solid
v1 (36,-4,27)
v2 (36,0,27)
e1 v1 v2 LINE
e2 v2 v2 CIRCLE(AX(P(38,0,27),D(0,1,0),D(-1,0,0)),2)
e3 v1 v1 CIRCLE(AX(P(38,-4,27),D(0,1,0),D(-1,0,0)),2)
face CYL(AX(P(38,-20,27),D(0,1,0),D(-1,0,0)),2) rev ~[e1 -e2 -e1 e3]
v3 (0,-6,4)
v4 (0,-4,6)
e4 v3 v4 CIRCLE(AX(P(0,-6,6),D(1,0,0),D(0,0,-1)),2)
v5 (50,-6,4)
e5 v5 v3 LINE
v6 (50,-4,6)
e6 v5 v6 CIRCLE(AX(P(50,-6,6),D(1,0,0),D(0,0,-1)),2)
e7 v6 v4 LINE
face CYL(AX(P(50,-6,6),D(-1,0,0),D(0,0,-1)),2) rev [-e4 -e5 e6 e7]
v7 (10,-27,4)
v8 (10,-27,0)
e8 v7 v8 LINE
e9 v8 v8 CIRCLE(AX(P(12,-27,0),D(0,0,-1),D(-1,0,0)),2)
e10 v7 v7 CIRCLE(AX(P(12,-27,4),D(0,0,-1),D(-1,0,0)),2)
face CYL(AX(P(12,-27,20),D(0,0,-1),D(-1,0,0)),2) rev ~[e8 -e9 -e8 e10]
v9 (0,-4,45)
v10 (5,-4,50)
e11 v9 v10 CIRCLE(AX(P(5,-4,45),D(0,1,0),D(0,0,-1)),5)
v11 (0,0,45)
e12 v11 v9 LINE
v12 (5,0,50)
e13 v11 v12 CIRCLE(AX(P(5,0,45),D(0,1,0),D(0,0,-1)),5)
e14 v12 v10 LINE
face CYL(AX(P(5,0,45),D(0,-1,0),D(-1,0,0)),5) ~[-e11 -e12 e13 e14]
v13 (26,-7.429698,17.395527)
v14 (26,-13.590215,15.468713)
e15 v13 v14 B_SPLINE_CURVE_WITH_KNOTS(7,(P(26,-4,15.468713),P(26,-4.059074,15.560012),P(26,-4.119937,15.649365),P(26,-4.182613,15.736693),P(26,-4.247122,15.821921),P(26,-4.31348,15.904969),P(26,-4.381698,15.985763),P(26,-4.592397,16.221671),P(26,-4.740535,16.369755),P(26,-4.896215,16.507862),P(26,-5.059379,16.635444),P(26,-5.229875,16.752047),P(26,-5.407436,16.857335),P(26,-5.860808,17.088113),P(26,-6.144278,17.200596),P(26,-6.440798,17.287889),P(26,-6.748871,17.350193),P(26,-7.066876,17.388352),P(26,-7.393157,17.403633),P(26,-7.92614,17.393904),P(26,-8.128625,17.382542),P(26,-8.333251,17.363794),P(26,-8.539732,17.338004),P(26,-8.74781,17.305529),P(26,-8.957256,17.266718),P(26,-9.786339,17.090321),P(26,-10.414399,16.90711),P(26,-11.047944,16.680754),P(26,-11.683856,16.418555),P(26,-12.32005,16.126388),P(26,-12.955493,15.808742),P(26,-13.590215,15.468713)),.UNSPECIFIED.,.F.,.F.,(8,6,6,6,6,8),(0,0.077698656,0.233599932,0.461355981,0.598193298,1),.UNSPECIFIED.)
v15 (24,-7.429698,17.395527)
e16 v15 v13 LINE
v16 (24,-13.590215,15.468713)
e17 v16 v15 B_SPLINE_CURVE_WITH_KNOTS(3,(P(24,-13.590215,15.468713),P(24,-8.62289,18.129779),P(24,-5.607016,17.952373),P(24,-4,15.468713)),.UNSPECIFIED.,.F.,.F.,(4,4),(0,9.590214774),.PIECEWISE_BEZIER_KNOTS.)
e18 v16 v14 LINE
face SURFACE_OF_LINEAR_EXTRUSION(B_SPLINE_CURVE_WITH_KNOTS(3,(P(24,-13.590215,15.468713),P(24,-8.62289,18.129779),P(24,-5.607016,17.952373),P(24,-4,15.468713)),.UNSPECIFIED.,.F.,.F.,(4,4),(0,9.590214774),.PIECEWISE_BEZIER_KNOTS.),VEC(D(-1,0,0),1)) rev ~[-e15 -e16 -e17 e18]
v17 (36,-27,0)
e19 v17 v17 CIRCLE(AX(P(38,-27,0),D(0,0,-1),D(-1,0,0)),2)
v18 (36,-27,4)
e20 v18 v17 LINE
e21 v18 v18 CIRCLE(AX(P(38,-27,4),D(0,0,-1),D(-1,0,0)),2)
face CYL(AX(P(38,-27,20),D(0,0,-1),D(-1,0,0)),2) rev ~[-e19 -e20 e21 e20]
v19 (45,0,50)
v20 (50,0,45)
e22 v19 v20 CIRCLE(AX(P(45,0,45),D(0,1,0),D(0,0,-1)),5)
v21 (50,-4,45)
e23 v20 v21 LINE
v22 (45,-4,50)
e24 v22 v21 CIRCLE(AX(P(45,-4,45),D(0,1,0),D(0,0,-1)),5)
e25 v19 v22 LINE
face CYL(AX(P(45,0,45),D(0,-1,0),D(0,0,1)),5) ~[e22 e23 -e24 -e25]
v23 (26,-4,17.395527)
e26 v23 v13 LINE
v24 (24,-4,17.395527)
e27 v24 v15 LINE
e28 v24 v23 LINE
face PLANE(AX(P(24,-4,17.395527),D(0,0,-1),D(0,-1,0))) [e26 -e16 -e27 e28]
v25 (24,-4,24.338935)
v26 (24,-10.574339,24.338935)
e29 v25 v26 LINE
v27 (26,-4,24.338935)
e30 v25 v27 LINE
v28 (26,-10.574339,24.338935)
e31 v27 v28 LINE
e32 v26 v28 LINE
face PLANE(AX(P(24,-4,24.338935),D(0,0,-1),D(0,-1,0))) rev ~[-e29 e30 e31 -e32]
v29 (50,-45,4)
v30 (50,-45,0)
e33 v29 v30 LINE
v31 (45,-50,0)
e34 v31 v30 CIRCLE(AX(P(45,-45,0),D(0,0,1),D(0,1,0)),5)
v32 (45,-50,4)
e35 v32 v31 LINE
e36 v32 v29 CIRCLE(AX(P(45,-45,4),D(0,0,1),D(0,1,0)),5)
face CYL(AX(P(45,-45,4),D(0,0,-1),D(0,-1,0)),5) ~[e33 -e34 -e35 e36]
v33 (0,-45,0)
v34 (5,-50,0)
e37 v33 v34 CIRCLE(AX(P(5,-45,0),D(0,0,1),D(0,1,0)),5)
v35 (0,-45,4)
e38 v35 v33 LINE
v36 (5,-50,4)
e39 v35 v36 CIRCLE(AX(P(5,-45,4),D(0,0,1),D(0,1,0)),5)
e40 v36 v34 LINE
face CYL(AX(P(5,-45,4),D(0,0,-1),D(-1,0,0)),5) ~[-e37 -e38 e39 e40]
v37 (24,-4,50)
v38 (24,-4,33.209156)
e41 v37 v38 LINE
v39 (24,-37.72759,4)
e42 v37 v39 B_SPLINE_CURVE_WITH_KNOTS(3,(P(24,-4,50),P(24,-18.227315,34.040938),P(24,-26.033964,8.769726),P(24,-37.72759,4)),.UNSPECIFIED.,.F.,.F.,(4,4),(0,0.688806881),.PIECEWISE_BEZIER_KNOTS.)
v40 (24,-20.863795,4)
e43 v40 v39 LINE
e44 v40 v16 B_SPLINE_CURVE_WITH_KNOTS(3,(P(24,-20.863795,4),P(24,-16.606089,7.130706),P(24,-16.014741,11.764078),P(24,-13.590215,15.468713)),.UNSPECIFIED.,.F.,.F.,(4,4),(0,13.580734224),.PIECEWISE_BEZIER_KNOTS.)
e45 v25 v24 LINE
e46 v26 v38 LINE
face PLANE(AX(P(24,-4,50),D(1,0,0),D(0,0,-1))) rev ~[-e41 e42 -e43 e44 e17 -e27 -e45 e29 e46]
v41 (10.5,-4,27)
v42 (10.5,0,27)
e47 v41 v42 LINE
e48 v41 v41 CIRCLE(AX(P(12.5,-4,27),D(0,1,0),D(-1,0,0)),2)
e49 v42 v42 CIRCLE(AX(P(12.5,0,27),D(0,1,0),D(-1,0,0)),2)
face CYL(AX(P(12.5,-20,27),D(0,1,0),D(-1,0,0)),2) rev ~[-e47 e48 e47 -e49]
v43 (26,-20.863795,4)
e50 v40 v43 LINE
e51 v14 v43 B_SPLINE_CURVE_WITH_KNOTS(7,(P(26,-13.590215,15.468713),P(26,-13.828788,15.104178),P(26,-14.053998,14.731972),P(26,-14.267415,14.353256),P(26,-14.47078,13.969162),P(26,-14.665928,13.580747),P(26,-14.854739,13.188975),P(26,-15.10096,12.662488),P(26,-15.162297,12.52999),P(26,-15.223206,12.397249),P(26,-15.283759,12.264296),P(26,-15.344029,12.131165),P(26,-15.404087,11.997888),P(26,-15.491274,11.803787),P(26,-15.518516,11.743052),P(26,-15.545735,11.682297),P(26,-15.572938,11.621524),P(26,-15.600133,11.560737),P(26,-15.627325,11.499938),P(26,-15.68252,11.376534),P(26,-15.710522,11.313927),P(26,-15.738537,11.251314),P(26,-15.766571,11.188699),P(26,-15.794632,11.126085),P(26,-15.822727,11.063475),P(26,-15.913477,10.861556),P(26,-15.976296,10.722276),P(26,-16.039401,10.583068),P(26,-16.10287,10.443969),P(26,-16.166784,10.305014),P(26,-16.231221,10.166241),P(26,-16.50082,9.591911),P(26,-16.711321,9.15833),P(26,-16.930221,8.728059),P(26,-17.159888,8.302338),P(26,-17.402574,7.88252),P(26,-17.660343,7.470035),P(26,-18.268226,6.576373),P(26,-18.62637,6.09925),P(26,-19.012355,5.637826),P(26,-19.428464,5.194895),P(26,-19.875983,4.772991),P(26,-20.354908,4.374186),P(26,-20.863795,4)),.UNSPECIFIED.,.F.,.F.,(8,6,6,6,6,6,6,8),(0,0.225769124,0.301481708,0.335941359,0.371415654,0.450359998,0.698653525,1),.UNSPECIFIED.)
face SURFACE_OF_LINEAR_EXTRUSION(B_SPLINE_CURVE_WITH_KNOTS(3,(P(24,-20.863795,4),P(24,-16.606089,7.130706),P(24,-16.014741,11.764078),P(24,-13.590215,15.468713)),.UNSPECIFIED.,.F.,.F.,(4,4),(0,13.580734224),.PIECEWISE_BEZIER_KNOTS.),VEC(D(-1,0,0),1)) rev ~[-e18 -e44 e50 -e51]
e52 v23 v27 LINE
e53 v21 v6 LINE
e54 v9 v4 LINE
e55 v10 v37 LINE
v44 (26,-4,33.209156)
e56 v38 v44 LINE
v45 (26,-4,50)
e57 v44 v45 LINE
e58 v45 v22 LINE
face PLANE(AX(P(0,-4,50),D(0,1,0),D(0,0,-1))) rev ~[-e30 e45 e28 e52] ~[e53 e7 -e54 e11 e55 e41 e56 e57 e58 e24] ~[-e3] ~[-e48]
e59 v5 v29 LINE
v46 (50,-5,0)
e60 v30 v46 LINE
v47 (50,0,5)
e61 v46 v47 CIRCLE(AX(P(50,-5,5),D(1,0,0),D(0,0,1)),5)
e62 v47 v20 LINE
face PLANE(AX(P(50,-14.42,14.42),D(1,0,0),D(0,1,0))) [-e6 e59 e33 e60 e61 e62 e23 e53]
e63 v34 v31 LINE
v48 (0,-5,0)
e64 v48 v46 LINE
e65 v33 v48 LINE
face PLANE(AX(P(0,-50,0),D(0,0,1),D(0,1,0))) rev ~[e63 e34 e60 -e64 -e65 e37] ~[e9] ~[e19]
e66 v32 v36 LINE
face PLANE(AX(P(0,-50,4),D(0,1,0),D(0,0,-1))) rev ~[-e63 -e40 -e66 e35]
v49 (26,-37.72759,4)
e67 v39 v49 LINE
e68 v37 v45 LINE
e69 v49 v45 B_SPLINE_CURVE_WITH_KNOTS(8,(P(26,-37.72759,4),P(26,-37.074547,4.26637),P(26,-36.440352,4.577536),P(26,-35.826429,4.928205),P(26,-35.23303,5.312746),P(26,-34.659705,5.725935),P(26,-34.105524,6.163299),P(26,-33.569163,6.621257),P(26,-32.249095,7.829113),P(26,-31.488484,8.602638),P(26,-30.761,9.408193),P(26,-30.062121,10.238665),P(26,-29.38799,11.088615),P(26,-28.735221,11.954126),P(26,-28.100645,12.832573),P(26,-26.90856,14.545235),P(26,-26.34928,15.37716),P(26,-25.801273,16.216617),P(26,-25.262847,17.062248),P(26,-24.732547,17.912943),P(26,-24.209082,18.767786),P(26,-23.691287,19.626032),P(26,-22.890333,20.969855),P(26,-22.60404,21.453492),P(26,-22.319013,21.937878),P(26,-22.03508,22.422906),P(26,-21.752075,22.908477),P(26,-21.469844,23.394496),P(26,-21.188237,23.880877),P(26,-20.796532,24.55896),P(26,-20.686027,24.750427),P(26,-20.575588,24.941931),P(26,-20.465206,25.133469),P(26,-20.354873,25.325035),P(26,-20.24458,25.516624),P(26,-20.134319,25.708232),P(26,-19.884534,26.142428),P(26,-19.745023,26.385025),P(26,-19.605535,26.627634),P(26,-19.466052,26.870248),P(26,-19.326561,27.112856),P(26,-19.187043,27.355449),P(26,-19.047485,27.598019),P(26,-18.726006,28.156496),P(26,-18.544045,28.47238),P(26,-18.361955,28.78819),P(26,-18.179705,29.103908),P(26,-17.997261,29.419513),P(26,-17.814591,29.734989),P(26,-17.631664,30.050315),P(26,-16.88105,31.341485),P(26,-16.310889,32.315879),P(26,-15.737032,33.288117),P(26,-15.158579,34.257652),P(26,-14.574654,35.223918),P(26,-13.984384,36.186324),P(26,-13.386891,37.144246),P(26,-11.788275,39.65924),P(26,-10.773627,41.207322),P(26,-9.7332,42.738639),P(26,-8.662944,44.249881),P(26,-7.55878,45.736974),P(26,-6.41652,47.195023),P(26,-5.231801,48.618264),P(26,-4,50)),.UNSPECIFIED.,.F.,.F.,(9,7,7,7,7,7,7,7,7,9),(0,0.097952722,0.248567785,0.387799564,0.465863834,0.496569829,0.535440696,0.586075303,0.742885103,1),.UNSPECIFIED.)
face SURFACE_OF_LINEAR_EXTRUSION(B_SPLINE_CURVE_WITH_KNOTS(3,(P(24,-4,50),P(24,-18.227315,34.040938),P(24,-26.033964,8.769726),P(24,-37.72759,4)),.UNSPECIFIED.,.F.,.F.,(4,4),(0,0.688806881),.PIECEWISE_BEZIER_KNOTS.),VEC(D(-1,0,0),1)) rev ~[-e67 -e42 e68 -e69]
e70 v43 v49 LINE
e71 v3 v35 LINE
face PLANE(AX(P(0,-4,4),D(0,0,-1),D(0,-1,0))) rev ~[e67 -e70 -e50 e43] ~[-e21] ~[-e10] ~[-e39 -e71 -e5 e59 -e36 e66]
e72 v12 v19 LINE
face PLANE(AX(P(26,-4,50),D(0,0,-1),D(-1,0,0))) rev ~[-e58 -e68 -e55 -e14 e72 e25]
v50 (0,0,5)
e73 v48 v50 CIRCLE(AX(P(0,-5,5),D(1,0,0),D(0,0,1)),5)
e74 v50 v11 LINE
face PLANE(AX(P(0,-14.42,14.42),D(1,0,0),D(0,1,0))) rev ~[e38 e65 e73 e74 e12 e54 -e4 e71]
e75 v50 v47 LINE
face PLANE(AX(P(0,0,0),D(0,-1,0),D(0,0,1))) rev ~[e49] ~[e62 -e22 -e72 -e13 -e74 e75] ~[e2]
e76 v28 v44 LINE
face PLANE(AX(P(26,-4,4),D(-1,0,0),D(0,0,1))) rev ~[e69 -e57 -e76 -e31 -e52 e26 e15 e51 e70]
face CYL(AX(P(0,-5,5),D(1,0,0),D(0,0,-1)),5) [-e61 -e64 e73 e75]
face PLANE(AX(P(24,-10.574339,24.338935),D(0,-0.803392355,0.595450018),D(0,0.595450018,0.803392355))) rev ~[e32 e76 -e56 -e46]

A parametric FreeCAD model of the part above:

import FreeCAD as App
import Part
import Sketcher
from FreeCAD import Vector
Q = App.Units.Quantity


def edges_at(feature, points):
    """Names of the edges that pass closest to the given points."""
    edges = feature.Shape.Edges
    near = lambda p: min(range(len(edges)), key=lambda i: edges[i].distToShape(Part.Vertex(*p))[0])
    return sorted({f"Edge{near(p) + 1}" for p in points})

doc = App.newDocument("Part")
body = doc.addObject("PartDesign::Body", "Body")

sketch1 = body.newObject("Sketcher::SketchObject", "Sketch")
sketch1.AttachmentSupport = (doc.getObject("YZ_Plane"), [""])
sketch1.MapMode = "FlatFace"
sketch1.addGeometry(Part.LineSegment(Vector(-50, 4, 0), Vector(-50, 0, 0)), False)
sketch1.addGeometry(Part.LineSegment(Vector(-50, 0, 0), Vector(0, 0, 0)), False)
sketch1.addGeometry(Part.LineSegment(Vector(0, 0, 0), Vector(0, 50, 0)), False)
sketch1.addGeometry(Part.LineSegment(Vector(0, 50, 0), Vector(-4, 50, 0)), False)
sketch1.addGeometry(Part.LineSegment(Vector(-4, 50, 0), Vector(-4, 4, 0)), False)
sketch1.addGeometry(Part.LineSegment(Vector(-4, 4, 0), Vector(-50, 4, 0)), False)
sketch1.addConstraint(Sketcher.Constraint("Coincident", 0, 2, 1, 1))
sketch1.addConstraint(Sketcher.Constraint("Coincident", 1, 2, 2, 1))
sketch1.addConstraint(Sketcher.Constraint("Coincident", 2, 2, 3, 1))
sketch1.addConstraint(Sketcher.Constraint("Coincident", 3, 2, 4, 1))
sketch1.addConstraint(Sketcher.Constraint("Coincident", 4, 2, 5, 1))
sketch1.addConstraint(Sketcher.Constraint("Coincident", 5, 2, 0, 1))
sketch1.addConstraint(Sketcher.Constraint("Vertical", 0))
sketch1.addConstraint(Sketcher.Constraint("Horizontal", 1))
sketch1.addConstraint(Sketcher.Constraint("Vertical", 2))
sketch1.addConstraint(Sketcher.Constraint("Horizontal", 3))
sketch1.addConstraint(Sketcher.Constraint("Vertical", 4))
sketch1.addConstraint(Sketcher.Constraint("Horizontal", 5))
sketch1.addConstraint(Sketcher.Constraint("Coincident", 1, 2, -1, 1))
sketch1.addConstraint(Sketcher.Constraint("Equal", 3, 0))
sketch1.addConstraint(Sketcher.Constraint("Equal", 1, 2))
sketch1.addConstraint(Sketcher.Constraint("DistanceX", 1, 1, 1, 2, Q("50 mm")))
sketch1.addConstraint(Sketcher.Constraint("DistanceX", 3, 2, 3, 1, Q("4 mm")))
pad1 = body.newObject("PartDesign::Pad", "Pad")
pad1.Profile = sketch1
pad1.Length = 50

sketch2 = body.newObject("Sketcher::SketchObject", "Sketch001")
sketch2.AttachmentSupport = (doc.getObject("XZ_Plane"), [""])
sketch2.MapMode = "FlatFace"
sketch2.AttachmentOffset = App.Placement(Vector(0, 0, 4), App.Rotation())
sketch2.addGeometry(Part.LineSegment(Vector(24, 50, 0), Vector(24, 4, 0)), False)
sketch2.addGeometry(Part.LineSegment(Vector(24, 4, 0), Vector(26, 4, 0)), False)
sketch2.addGeometry(Part.LineSegment(Vector(26, 4, 0), Vector(26, 50, 0)), False)
sketch2.addGeometry(Part.LineSegment(Vector(26, 50, 0), Vector(24, 50, 0)), False)
sketch2.addConstraint(Sketcher.Constraint("Coincident", 0, 2, 1, 1))
sketch2.addConstraint(Sketcher.Constraint("Coincident", 1, 2, 2, 1))
sketch2.addConstraint(Sketcher.Constraint("Coincident", 2, 2, 3, 1))
sketch2.addConstraint(Sketcher.Constraint("Coincident", 3, 2, 0, 1))
sketch2.addConstraint(Sketcher.Constraint("Vertical", 0))
sketch2.addConstraint(Sketcher.Constraint("Horizontal", 1))
sketch2.addConstraint(Sketcher.Constraint("Vertical", 2))
sketch2.addConstraint(Sketcher.Constraint("Horizontal", 3))
sketch2.addConstraint(Sketcher.Constraint("DistanceX", 1, 1, 1, 2, Q("2 mm")))
sketch2.addConstraint(Sketcher.Constraint("DistanceY", 0, 2, 0, 1, Q("46 mm")))
sketch2.addConstraint(Sketcher.Constraint("DistanceX", -1, 1, 0, 2, Q("24 mm")))
sketch2.addConstraint(Sketcher.Constraint("DistanceY", -1, 1, 0, 2, Q("4 mm")))
pad2 = body.newObject("PartDesign::Pad", "Pad001")
pad2.Profile = sketch2
pad2.Length = 46

sketch3 = body.newObject("Sketcher::SketchObject", "Sketch002")
sketch3.AttachmentSupport = (doc.getObject("YZ_Plane"), [""])
sketch3.MapMode = "FlatFace"
sketch3.AttachmentOffset = App.Placement(Vector(0, 0, 24), App.Rotation())
sketch3.addGeometry(Part.LineSegment(Vector(-50, 50, 0), Vector(-4, 50, 0)), False)
sketch3.addGeometry(Part.BSplineCurve([Vector(-4, 50, 0), Vector(-18.227315, 34.040938, 0), Vector(-26.033964, 8.769726, 0), Vector(-37.72759, 4, 0)], [4, 4], [0, 0.688806881], False, 3, [1, 1, 1, 1], False), False)
sketch3.addGeometry(Part.LineSegment(Vector(-37.72759, 4, 0), Vector(-50, 4, 0)), False)
sketch3.addGeometry(Part.LineSegment(Vector(-50, 4, 0), Vector(-50, 50, 0)), False)
sketch3.addConstraint(Sketcher.Constraint("Block", 1))
sketch3.addConstraint(Sketcher.Constraint("Coincident", 0, 2, 1, 1))
sketch3.addConstraint(Sketcher.Constraint("Coincident", 1, 2, 2, 1))
sketch3.addConstraint(Sketcher.Constraint("Coincident", 2, 2, 3, 1))
sketch3.addConstraint(Sketcher.Constraint("Coincident", 3, 2, 0, 1))
sketch3.addConstraint(Sketcher.Constraint("Horizontal", 0))
sketch3.addConstraint(Sketcher.Constraint("Horizontal", 2))
sketch3.addConstraint(Sketcher.Constraint("Vertical", 3))
sketch3.addConstraint(Sketcher.Constraint("DistanceX", 0, 1, 0, 2, Q("46 mm")))
pocket1 = body.newObject("PartDesign::Pocket", "Pocket")
pocket1.Profile = sketch3
pocket1.Length = 25
pocket1.Reversed = True

sketch4 = body.newObject("Sketcher::SketchObject", "Sketch003")
sketch4.AttachmentSupport = (doc.getObject("YZ_Plane"), [""])
sketch4.MapMode = "FlatFace"
sketch4.AttachmentOffset = App.Placement(Vector(0, 0, 24), App.Rotation())
sketch4.addGeometry(Part.LineSegment(Vector(-4, 4, 0), Vector(-20.863795, 4, 0)), False)
sketch4.addGeometry(Part.BSplineCurve([Vector(-20.863795, 4, 0), Vector(-16.606089, 7.130706, 0), Vector(-16.014741, 11.764078, 0), Vector(-13.590215, 15.468713, 0)], [4, 4], [0, 13.580734224], False, 3, [1, 1, 1, 1], False), False)
sketch4.addGeometry(Part.BSplineCurve([Vector(-13.590215, 15.468713, 0), Vector(-8.62289, 18.129779, 0), Vector(-5.607016, 17.952373, 0), Vector(-4, 15.468713, 0)], [4, 4], [0, 9.590214774], False, 3, [1, 1, 1, 1], False), False)
sketch4.addGeometry(Part.LineSegment(Vector(-4, 15.468713, 0), Vector(-4, 4, 0)), False)
sketch4.addGeometry(Part.LineSegment(Vector(-4, 33.209156, 0), Vector(-4, 24.338935, 0)), False)
sketch4.addGeometry(Part.LineSegment(Vector(-4, 24.338935, 0), Vector(-10.574339, 24.338935, 0)), False)
sketch4.addGeometry(Part.LineSegment(Vector(-10.574339, 24.338935, 0), Vector(-4, 33.209156, 0)), False)
sketch4.addConstraint(Sketcher.Constraint("Block", 1))
sketch4.addConstraint(Sketcher.Constraint("Block", 2))
sketch4.addConstraint(Sketcher.Constraint("Coincident", 0, 2, 1, 1))
sketch4.addConstraint(Sketcher.Constraint("Coincident", 2, 2, 3, 1))
sketch4.addConstraint(Sketcher.Constraint("Coincident", 3, 2, 0, 1))
sketch4.addConstraint(Sketcher.Constraint("Coincident", 4, 2, 5, 1))
sketch4.addConstraint(Sketcher.Constraint("Coincident", 5, 2, 6, 1))
sketch4.addConstraint(Sketcher.Constraint("Coincident", 6, 2, 4, 1))
sketch4.addConstraint(Sketcher.Constraint("Horizontal", 0))
sketch4.addConstraint(Sketcher.Constraint("Vertical", 3))
sketch4.addConstraint(Sketcher.Constraint("Vertical", 4))
sketch4.addConstraint(Sketcher.Constraint("Horizontal", 5))
sketch4.addConstraint(Sketcher.Constraint("Vertical", 3, 2, 4, 2))
sketch4.addConstraint(Sketcher.Constraint("DistanceX", 5, 2, 5, 1, Q("6.574339 mm")))
sketch4.addConstraint(Sketcher.Constraint("DistanceY", 4, 2, 4, 1, Q("8.870222 mm")))
sketch4.addConstraint(Sketcher.Constraint("DistanceY", -1, 1, 4, 2, Q("24.338935 mm")))
pocket2 = body.newObject("PartDesign::Pocket", "Pocket001")
pocket2.Profile = sketch4
pocket2.Length = 25
pocket2.Reversed = True

sketch5 = body.newObject("Sketcher::SketchObject", "Sketch004")
sketch5.AttachmentSupport = (doc.getObject("YZ_Plane"), [""])
sketch5.MapMode = "FlatFace"
sketch5.AttachmentOffset = App.Placement(Vector(0, 0, 24), App.Rotation())
sketch5.addGeometry(Part.LineSegment(Vector(-4, 17.4, 0), Vector(-4, 15.5, 0)), False)
sketch5.addGeometry(Part.LineSegment(Vector(-4, 15.5, 0), Vector(-7.4, 15.5, 0)), False)
sketch5.addGeometry(Part.LineSegment(Vector(-7.4, 15.5, 0), Vector(-7.4, 17.4, 0)), False)
sketch5.addGeometry(Part.LineSegment(Vector(-7.4, 17.4, 0), Vector(-4, 17.4, 0)), False)
sketch5.addConstraint(Sketcher.Constraint("Coincident", 0, 2, 1, 1))
sketch5.addConstraint(Sketcher.Constraint("Coincident", 1, 2, 2, 1))
sketch5.addConstraint(Sketcher.Constraint("Coincident", 2, 2, 3, 1))
sketch5.addConstraint(Sketcher.Constraint("Coincident", 3, 2, 0, 1))
sketch5.addConstraint(Sketcher.Constraint("Vertical", 0))
sketch5.addConstraint(Sketcher.Constraint("Horizontal", 1))
sketch5.addConstraint(Sketcher.Constraint("Vertical", 2))
sketch5.addConstraint(Sketcher.Constraint("Horizontal", 3))
sketch5.addConstraint(Sketcher.Constraint("DistanceX", 0, 2, -1, 1, Q("4 mm")))
sketch5.addConstraint(Sketcher.Constraint("DistanceX", 1, 2, 1, 1, Q("3.429698 mm")))
sketch5.addConstraint(Sketcher.Constraint("DistanceY", 0, 2, 0, 1, Q("1.926814 mm")))
sketch5.addConstraint(Sketcher.Constraint("DistanceY", -1, 1, 0, 2, Q("15.468713 mm")))
pocket3 = body.newObject("PartDesign::Pocket", "Pocket002")
pocket3.Profile = sketch5
pocket3.Length = 25
pocket3.Reversed = True

sketch6 = body.newObject("Sketcher::SketchObject", "Sketch005")
sketch6.AttachmentSupport = (doc.getObject("XZ_Plane"), [""])
sketch6.MapMode = "FlatFace"
sketch6.AttachmentOffset = App.Placement(Vector(0, 0, 4), App.Rotation())
sketch6.addGeometry(Part.Circle(Vector(12.5, 27, 0), Vector(0, 0, 1), 2), False)
sketch6.addGeometry(Part.Circle(Vector(38, 27, 0), Vector(0, 0, 1), 2), False)
sketch6.addConstraint(Sketcher.Constraint("Equal", 0, 1))
sketch6.addConstraint(Sketcher.Constraint("Horizontal", 0, 3, 1, 3))
sketch6.addConstraint(Sketcher.Constraint("Diameter", 0, Q("4 mm")))
sketch6.addConstraint(Sketcher.Constraint("DistanceY", -1, 1, 0, 3, Q("27 mm")))
sketch6.addConstraint(Sketcher.Constraint("DistanceX", -1, 1, 1, 3, Q("38 mm")))
sketch6.addConstraint(Sketcher.Constraint("DistanceX", -1, 1, 0, 3, Q("12.5 mm")))
doc.recompute()
hole = body.newObject("PartDesign::Hole", "Hole")
hole.Profile = sketch6
hole.ThreadType = "None"
hole.Diameter = 4
hole.DepthType = "Dimension"
hole.Depth = 16
hole.DrillPoint = "Angled"
hole.DrillPointAngle = 118

sketch7 = body.newObject("Sketcher::SketchObject", "Sketch006")
sketch7.AttachmentSupport = (doc.getObject("XY_Plane"), [""])
sketch7.MapMode = "FlatFace"
sketch7.AttachmentOffset = App.Placement(Vector(0, 0, 4), App.Rotation())
sketch7.addGeometry(Part.Circle(Vector(38, -27, 0), Vector(0, 0, 1), 2), False)
sketch7.addGeometry(Part.Circle(Vector(12, -27, 0), Vector(0, 0, 1), 2), False)
sketch7.addConstraint(Sketcher.Constraint("Equal", 0, 1))
sketch7.addConstraint(Sketcher.Constraint("Horizontal", 0, 3, 1, 3))
sketch7.addConstraint(Sketcher.Constraint("Diameter", 0, Q("4 mm")))
sketch7.addConstraint(Sketcher.Constraint("DistanceX", -1, 1, 0, 3, Q("38 mm")))
sketch7.addConstraint(Sketcher.Constraint("DistanceY", 0, 3, -1, 1, Q("27 mm")))
sketch7.addConstraint(Sketcher.Constraint("DistanceX", -1, 1, 1, 3, Q("12 mm")))
doc.recompute()
hole2 = body.newObject("PartDesign::Hole", "Hole001")
hole2.Profile = sketch7
hole2.ThreadType = "None"
hole2.Diameter = 4
hole2.DepthType = "Dimension"
hole2.Depth = 16
hole2.DrillPoint = "Angled"
hole2.DrillPointAngle = 118
doc.recompute()

fillet = body.newObject("PartDesign::Fillet", "Fillet")
fillet.Base = (hole2, edges_at(hole2, [(25, 0, 0)]))
fillet.Radius = 5
doc.recompute()

fillet2 = body.newObject("PartDesign::Fillet", "Fillet001")
fillet2.Base = (fillet, edges_at(fillet, [(25, -4, 4)]))
fillet2.Radius = 2
doc.recompute()

fillet3 = body.newObject("PartDesign::Fillet", "Fillet002")
fillet3.Base = (fillet2, edges_at(fillet2, [
    (0, -2, 50),
    (50, -2, 50),
    (0, -50, 2),
    (50, -50, 2),
]))
fillet3.Radius = 5

doc.recompute()
